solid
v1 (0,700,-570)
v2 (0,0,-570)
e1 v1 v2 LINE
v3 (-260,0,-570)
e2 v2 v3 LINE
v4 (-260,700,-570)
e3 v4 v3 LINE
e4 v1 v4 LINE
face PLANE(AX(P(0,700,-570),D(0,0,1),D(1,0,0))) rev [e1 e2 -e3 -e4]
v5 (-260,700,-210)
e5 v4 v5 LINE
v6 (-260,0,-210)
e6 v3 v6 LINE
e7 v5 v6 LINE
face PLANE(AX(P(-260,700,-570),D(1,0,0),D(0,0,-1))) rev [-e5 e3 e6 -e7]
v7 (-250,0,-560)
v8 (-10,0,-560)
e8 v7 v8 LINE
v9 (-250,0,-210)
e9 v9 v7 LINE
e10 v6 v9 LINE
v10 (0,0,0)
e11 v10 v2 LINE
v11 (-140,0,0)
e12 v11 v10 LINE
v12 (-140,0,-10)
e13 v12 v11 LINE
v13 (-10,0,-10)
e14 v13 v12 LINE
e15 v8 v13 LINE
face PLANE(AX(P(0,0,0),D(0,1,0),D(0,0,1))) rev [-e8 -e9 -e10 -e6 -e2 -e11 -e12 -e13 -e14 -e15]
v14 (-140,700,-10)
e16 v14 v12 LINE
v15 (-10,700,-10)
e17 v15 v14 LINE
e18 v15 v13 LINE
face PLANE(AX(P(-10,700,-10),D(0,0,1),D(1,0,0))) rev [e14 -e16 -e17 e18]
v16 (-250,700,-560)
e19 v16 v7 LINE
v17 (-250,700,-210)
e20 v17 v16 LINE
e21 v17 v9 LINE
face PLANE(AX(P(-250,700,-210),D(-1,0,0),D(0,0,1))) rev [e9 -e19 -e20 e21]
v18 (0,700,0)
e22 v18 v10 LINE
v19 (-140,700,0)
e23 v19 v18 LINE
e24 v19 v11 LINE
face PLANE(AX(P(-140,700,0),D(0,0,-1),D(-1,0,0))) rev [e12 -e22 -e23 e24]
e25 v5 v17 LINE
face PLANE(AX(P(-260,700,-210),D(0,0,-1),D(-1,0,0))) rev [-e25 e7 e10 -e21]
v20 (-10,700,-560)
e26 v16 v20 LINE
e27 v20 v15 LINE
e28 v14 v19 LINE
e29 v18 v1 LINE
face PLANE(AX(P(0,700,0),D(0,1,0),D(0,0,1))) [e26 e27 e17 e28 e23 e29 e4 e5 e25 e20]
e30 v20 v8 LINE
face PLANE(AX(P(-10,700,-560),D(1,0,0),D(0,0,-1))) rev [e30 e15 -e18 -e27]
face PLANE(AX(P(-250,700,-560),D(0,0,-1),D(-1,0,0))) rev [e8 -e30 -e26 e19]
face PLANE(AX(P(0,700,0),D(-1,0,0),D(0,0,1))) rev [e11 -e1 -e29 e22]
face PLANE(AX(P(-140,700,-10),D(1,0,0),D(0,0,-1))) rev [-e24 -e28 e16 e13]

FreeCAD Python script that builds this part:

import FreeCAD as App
import Part
import Sketcher
from FreeCAD import Vector

doc = App.newDocument("Part")
params = doc.addObject("Spreadsheet::Sheet", "Params")
for row, (alias, value) in enumerate([
    ("sketch1_width", "260 mm"),
    ("sketch1_width2", "10 mm"),
    ("sketch1_width3", "240 mm"),
    ("sketch1_width4", "130 mm"),
    ("sketch1_height", "570 mm"),
    ("pad1_length", "700 mm"),
], start=1):
    params.set(f"A{row}", alias)
    params.set(f"B{row}", "=" + value)
    params.setAlias(f"B{row}", alias)

body = doc.addObject("PartDesign::Body", "Body")

sketch1 = doc.addObject("Sketcher::SketchObject", "Sketch")
body.addObject(sketch1)
sketch1.AttachmentSupport = (doc.XZ_Plane, [""])
sketch1.MapMode = "FlatFace"
sketch1.addGeometry(Part.LineSegment(Vector(0, 0, 0), Vector(0, -570, 0)), False)
sketch1.addGeometry(Part.LineSegment(Vector(0, -570, 0), Vector(-260, -570, 0)), False)
sketch1.addGeometry(Part.LineSegment(Vector(-260, -570, 0), Vector(-260, -210, 0)), False)
sketch1.addGeometry(Part.LineSegment(Vector(-260, -210, 0), Vector(-250, -210, 0)), False)
sketch1.addGeometry(Part.LineSegment(Vector(-250, -210, 0), Vector(-250, -560, 0)), False)
sketch1.addGeometry(Part.LineSegment(Vector(-250, -560, 0), Vector(-10, -560, 0)), False)
sketch1.addGeometry(Part.LineSegment(Vector(-10, -560, 0), Vector(-10, -10, 0)), False)
sketch1.addGeometry(Part.LineSegment(Vector(-10, -10, 0), Vector(-140, -10, 0)), False)
sketch1.addGeometry(Part.LineSegment(Vector(-140, -10, 0), Vector(-140, 0, 0)), False)
sketch1.addGeometry(Part.LineSegment(Vector(-140, 0, 0), Vector(0, 0, 0)), False)
sketch1.addConstraint(Sketcher.Constraint("Coincident", 0, 2, 1, 1))
sketch1.addConstraint(Sketcher.Constraint("Coincident", 1, 2, 2, 1))
sketch1.addConstraint(Sketcher.Constraint("Coincident", 2, 2, 3, 1))
sketch1.addConstraint(Sketcher.Constraint("Coincident", 3, 2, 4, 1))
sketch1.addConstraint(Sketcher.Constraint("Coincident", 4, 2, 5, 1))
sketch1.addConstraint(Sketcher.Constraint("Coincident", 5, 2, 6, 1))
sketch1.addConstraint(Sketcher.Constraint("Coincident", 6, 2, 7, 1))
sketch1.addConstraint(Sketcher.Constraint("Coincident", 7, 2, 8, 1))
sketch1.addConstraint(Sketcher.Constraint("Coincident", 8, 2, 9, 1))
sketch1.addConstraint(Sketcher.Constraint("Coincident", 9, 2, 0, 1))
sketch1.addConstraint(Sketcher.Constraint("Vertical", 0))
sketch1.addConstraint(Sketcher.Constraint("Horizontal", 1))
sketch1.addConstraint(Sketcher.Constraint("Vertical", 2))
sketch1.addConstraint(Sketcher.Constraint("Horizontal", 3))
sketch1.addConstraint(Sketcher.Constraint("Vertical", 4))
sketch1.addConstraint(Sketcher.Constraint("Horizontal", 5))
sketch1.addConstraint(Sketcher.Constraint("Vertical", 6))
sketch1.addConstraint(Sketcher.Constraint("Horizontal", 7))
sketch1.addConstraint(Sketcher.Constraint("Vertical", 8))
sketch1.addConstraint(Sketcher.Constraint("Horizontal", 9))
sketch1.addConstraint(Sketcher.Constraint("Coincident", 9, 2, -1, 1))
sketch1.addConstraint(Sketcher.Constraint("Equal", 3, 8))
sketch1.addConstraint(Sketcher.Constraint("DistanceX", 1, 2, 1, 1, 260.0))
sketch1.addConstraint(Sketcher.Constraint("DistanceX", 3, 1, 3, 2, 10.0))
sketch1.addConstraint(Sketcher.Constraint("DistanceX", 5, 1, 5, 2, 240.0))
sketch1.addConstraint(Sketcher.Constraint("DistanceX", 7, 2, 7, 1, 130.0))
sketch1.addConstraint(Sketcher.Constraint("DistanceY", 0, 2, 0, 1, 570.0))
sketch1.addConstraint(Sketcher.Constraint("DistanceY", 2, 1, 2, 2, 360.0))
sketch1.addConstraint(Sketcher.Constraint("DistanceY", 4, 2, 4, 1, 350.0))
sketch1.setExpression("Constraints[22]", "Params.sketch1_width")
sketch1.setExpression("Constraints[23]", "Params.sketch1_width2")
sketch1.setExpression("Constraints[24]", "Params.sketch1_width3")
sketch1.setExpression("Constraints[25]", "Params.sketch1_width4")
sketch1.setExpression("Constraints[26]", "Params.sketch1_height")
pad1 = doc.addObject("PartDesign::Pad", "Pad")
body.addObject(pad1)
pad1.Profile = sketch1
pad1.setExpression("Length", "Params.pad1_length")
pad1.Reversed = True

doc.recompute()
